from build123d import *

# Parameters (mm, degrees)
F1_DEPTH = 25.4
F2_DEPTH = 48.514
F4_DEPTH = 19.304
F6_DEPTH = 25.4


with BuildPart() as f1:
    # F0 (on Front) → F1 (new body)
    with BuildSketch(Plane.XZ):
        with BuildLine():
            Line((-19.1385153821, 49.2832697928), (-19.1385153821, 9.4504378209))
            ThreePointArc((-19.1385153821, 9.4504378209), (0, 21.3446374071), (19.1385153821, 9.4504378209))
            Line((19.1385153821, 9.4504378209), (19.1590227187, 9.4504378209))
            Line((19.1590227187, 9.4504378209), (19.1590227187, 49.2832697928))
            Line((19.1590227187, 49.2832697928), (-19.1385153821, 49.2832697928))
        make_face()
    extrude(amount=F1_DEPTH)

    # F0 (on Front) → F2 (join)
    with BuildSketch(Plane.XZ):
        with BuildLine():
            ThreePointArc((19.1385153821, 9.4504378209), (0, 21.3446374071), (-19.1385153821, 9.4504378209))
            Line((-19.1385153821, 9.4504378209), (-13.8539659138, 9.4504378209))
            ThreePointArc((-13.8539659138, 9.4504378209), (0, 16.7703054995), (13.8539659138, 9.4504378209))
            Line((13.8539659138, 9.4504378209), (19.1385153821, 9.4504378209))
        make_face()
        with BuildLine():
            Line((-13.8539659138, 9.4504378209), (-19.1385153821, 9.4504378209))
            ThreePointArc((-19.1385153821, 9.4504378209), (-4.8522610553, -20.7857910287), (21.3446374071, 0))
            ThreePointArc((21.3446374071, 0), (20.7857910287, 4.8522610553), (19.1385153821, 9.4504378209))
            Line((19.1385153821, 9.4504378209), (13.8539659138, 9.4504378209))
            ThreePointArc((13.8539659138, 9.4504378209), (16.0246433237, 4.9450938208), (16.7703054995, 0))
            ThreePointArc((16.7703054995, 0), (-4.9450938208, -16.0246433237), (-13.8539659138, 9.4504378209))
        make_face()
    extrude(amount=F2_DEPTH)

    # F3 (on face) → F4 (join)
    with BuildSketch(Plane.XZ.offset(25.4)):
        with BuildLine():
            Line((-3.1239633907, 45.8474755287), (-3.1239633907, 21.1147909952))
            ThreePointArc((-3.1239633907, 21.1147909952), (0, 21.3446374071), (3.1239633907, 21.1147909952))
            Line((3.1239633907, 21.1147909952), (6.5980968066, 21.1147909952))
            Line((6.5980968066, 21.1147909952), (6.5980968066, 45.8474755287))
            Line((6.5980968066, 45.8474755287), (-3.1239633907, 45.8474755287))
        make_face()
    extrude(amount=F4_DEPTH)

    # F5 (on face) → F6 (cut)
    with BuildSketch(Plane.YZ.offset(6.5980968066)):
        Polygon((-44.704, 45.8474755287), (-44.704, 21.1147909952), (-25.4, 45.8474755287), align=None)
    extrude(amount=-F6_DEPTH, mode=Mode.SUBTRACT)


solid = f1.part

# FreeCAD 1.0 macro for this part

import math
import FreeCAD as App
import Part
import Sketcher
Q = App.Units.Quantity


def add_polygon(sketch, points):
    """Adds a closed chain of lines whose ends are joined by coincident constraints."""
    first, n = sketch.GeometryCount, len(points)
    for a, b in zip(points, points[1:] + points[:1]):
        sketch.addGeometry(Part.LineSegment(App.Vector(*a, 0), App.Vector(*b, 0)), False)
    for i in range(n):
        sketch.addConstraint(Sketcher.Constraint("Coincident", first + i, 2, first + (i + 1) % n, 1))

doc = App.newDocument("Part")
params = doc.addObject("Spreadsheet::Sheet", "Params")
for row, (alias, value) in enumerate([
    ("pad1_length", "1 in"),
    ("pad2_length", "1.91 in"),
    ("pad3_length", "0.76 in"),
    ("sketch4_width", "0.76 in"),
    ("pocket1_length", "1 in"),
], start=1):
    params.set(f"A{row}", alias)
    params.set(f"B{row}", "=" + value)
    params.setAlias(f"B{row}", alias)

body = doc.addObject("PartDesign::Body", "Body")

sketch1 = body.newObject("Sketcher::SketchObject", "Sketch")
sketch1.AttachmentSupport = (doc.getObject("XZ_Plane"), [""])
sketch1.MapMode = "FlatFace"
sketch1.addGeometry([
    Part.LineSegment(App.Vector(-19.138515, 49.28327, 0), App.Vector(-19.138515, 9.450438, 0)),
    Part.ArcOfCircle(Part.Circle(App.Vector(0, 0, 0), App.Vector(0, 0, 1), 21.344637), math.radians(26.279772), math.radians(153.720228)),
    Part.LineSegment(App.Vector(19.138515, 9.450438, 0), App.Vector(19.159023, 9.450438, 0)),
    Part.LineSegment(App.Vector(19.159023, 9.450438, 0), App.Vector(19.159023, 49.28327, 0)),
    Part.LineSegment(App.Vector(19.159023, 49.28327, 0), App.Vector(-19.138515, 49.28327, 0)),
], False)
sketch1.addConstraint([
    Sketcher.Constraint("Coincident", 0, 2, 1, 2),
    Sketcher.Constraint("Coincident", 1, 1, 2, 1),
    Sketcher.Constraint("Coincident", 2, 2, 3, 1),
    Sketcher.Constraint("Coincident", 3, 2, 4, 1),
    Sketcher.Constraint("Coincident", 4, 2, 0, 1),
    Sketcher.Constraint("Vertical", 0),
    Sketcher.Constraint("Horizontal", 2),
    Sketcher.Constraint("Vertical", 3),
    Sketcher.Constraint("Horizontal", 4),
    Sketcher.Constraint("Coincident", 1, 3, -1, 1),
    Sketcher.Constraint("Horizontal", 0, 2, 1, 1),
    Sketcher.Constraint("Radius", 1, 21.344637),
    Sketcher.Constraint("DistanceX", 4, 2, 4, 1, 38.297538),
    Sketcher.Constraint("DistanceY", 0, 2, 0, 1, 39.832832),
    Sketcher.Constraint("DistanceX", 2, 1, 2, 2, 0.020507),
])
pad1 = body.newObject("PartDesign::Pad", "Pad")
pad1.Profile = sketch1
pad1.setExpression("Length", "Params.pad1_length")

sketch2 = body.newObject("Sketcher::SketchObject", "Sketch001")
sketch2.AttachmentSupport = (doc.getObject("XZ_Plane"), [""])
sketch2.MapMode = "FlatFace"
sketch2.addGeometry([
    Part.ArcOfCircle(Part.Circle(App.Vector(0, 0, 0), App.Vector(0, 0, 1), 21.344637), math.radians(26.279772), math.radians(153.720228)),
    Part.ArcOfCircle(Part.Circle(App.Vector(0, 0, 0), App.Vector(0, 0, 1), 21.344637), math.radians(153.720228), math.radians(360)),
    Part.ArcOfCircle(Part.Circle(App.Vector(0, 0, 0), App.Vector(0, 0, 1), 21.344637), math.radians(0), math.radians(26.279772)),
    Part.ArcOfCircle(Part.Circle(App.Vector(0, 0, 0), App.Vector(0, 0, 1), 16.770305), math.radians(0), math.radians(34.299726)),
    Part.ArcOfCircle(Part.Circle(App.Vector(0, 0, 0), App.Vector(0, 0, 1), 16.770305), math.radians(34.299726), math.radians(360)),
], False)
sketch2.addConstraint([
    Sketcher.Constraint("Tangent", 0, 2, 1, 1),
    Sketcher.Constraint("Tangent", 1, 2, 2, 1),
    Sketcher.Constraint("Tangent", 2, 2, 0, 1),
    Sketcher.Constraint("Tangent", 3, 1, 4, 2),
    Sketcher.Constraint("Coincident", 4, 1, 3, 2),
    Sketcher.Constraint("Coincident", 0, 3, -1, 1),
    Sketcher.Constraint("Coincident", 3, 3, -1, 1),
    Sketcher.Constraint("PointOnObject", 1, 2, -1),
    Sketcher.Constraint("PointOnObject", 3, 1, -1),
    Sketcher.Constraint("Horizontal", 0, 2, 2, 2),
    Sketcher.Constraint("Horizontal", 2, 2, 4, 1),
    Sketcher.Constraint("Radius", 0, 21.344637),
    Sketcher.Constraint("Radius", 3, 16.770305),
    Sketcher.Constraint("DistanceX", 3, 1, 2, 2, 2.36821),
])
pad2 = body.newObject("PartDesign::Pad", "Pad001")
pad2.Profile = sketch2
pad2.setExpression("Length", "Params.pad2_length")

sketch3 = body.newObject("Sketcher::SketchObject", "Sketch002")
sketch3.AttachmentSupport = (doc.getObject("XZ_Plane"), [""])
sketch3.MapMode = "FlatFace"
sketch3.AttachmentOffset = App.Placement(App.Vector(0, 0, 1 * 25.4), App.Rotation())
sketch3.addGeometry([
    Part.LineSegment(App.Vector(-3.123963, 45.847476, 0), App.Vector(-3.123963, 21.114791, 0)),
    Part.ArcOfCircle(Part.Circle(App.Vector(0, 0, 0), App.Vector(0, 0, 1), 21.344637), math.radians(81.584061), math.radians(98.415939)),
    Part.LineSegment(App.Vector(3.123963, 21.114791, 0), App.Vector(6.598097, 21.114791, 0)),
    Part.LineSegment(App.Vector(6.598097, 21.114791, 0), App.Vector(6.598097, 45.847476, 0)),
    Part.LineSegment(App.Vector(6.598097, 45.847476, 0), App.Vector(-3.123963, 45.847476, 0)),
], False)
sketch3.addConstraint([
    Sketcher.Constraint("Coincident", 0, 2, 1, 2),
    Sketcher.Constraint("Coincident", 1, 1, 2, 1),
    Sketcher.Constraint("Coincident", 2, 2, 3, 1),
    Sketcher.Constraint("Coincident", 3, 2, 4, 1),
    Sketcher.Constraint("Coincident", 4, 2, 0, 1),
    Sketcher.Constraint("Vertical", 0),
    Sketcher.Constraint("Horizontal", 2),
    Sketcher.Constraint("Vertical", 3),
    Sketcher.Constraint("Horizontal", 4),
    Sketcher.Constraint("Coincident", 1, 3, -1, 1),
    Sketcher.Constraint("Horizontal", 0, 2, 1, 1),
    Sketcher.Constraint("Radius", 1, 21.344637),
    Sketcher.Constraint("DistanceX", 4, 2, 4, 1, 9.72206),
    Sketcher.Constraint("DistanceX", 2, 1, 2, 2, 3.474133),
    Sketcher.Constraint("DistanceY", 0, 2, 0, 1, 24.732685),
])
pad3 = body.newObject("PartDesign::Pad", "Pad002")
pad3.Profile = sketch3
pad3.setExpression("Length", "Params.pad3_length")

sketch4 = body.newObject("Sketcher::SketchObject", "Sketch003")
sketch4.AttachmentSupport = (doc.getObject("YZ_Plane"), [""])
sketch4.MapMode = "FlatFace"
sketch4.AttachmentOffset = App.Placement(App.Vector(0, 0, 6.598097), App.Rotation())
add_polygon(sketch4, [(-44.704, 45.847476), (-44.704, 21.114791), (-25.4, 45.847476)])
sketch4.addConstraint([
    Sketcher.Constraint("Vertical", 0),
    Sketcher.Constraint("Horizontal", 2),
    Sketcher.Constraint("DistanceX", 1, 2, -1, 1, Q("1 in")),
    Sketcher.Constraint("DistanceX", 2, 2, 2, 1, Q("0.76 in")),
    Sketcher.Constraint("DistanceY", 0, 2, 0, 1, 24.732685),
    Sketcher.Constraint("DistanceY", -1, 1, 0, 2, 21.114791),
])
sketch4.setExpression("Constraints[6]", "Params.sketch4_width")
pocket1 = body.newObject("PartDesign::Pocket", "Pocket")
pocket1.Profile = sketch4
pocket1.setExpression("Length", "Params.pocket1_length")

doc.recompute()
